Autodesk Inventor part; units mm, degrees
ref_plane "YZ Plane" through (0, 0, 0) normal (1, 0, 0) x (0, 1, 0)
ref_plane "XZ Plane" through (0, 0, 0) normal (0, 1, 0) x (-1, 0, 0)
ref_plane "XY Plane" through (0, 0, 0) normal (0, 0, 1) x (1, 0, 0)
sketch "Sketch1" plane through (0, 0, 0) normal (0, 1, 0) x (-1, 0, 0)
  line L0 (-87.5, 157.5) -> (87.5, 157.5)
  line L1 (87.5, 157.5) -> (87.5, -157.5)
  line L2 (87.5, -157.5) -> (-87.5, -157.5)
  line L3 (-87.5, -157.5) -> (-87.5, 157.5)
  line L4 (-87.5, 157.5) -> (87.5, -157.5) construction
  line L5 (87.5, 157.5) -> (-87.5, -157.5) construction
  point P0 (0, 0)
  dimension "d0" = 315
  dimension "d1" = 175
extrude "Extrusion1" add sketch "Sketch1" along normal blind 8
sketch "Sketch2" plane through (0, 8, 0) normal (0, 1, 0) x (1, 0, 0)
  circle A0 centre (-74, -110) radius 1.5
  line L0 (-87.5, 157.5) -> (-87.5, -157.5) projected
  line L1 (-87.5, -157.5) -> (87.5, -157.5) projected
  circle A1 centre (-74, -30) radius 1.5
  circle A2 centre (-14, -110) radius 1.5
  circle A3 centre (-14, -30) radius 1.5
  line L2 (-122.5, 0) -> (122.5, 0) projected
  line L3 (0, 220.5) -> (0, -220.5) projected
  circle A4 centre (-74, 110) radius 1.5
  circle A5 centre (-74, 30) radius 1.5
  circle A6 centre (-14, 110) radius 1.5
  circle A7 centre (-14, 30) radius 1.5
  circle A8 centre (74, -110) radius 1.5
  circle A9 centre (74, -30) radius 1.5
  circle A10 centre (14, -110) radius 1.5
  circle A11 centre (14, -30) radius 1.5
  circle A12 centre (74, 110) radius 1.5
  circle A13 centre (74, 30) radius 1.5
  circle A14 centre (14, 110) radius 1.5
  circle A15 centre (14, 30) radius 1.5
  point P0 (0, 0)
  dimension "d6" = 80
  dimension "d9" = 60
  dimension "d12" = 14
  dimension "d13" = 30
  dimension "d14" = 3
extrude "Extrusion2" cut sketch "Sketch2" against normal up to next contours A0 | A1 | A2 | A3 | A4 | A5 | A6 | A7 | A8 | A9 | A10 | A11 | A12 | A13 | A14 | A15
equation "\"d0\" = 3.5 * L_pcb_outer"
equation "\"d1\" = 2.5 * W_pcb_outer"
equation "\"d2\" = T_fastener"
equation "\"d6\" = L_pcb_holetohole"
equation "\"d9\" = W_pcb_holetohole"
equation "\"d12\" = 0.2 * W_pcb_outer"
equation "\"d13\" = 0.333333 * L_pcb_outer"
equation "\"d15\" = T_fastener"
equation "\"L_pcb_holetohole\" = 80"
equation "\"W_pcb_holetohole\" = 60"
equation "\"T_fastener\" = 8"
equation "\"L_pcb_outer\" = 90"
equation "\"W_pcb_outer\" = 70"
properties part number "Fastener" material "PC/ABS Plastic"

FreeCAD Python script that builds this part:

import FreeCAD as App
import Part
import Sketcher
from FreeCAD import Vector
Q = App.Units.Quantity

doc = App.newDocument("Part")
body = doc.addObject("PartDesign::Body", "Body")

# Sketch on XZ plane
sketch1 = body.newObject("Sketcher::SketchObject", "Sketch")
sketch1.AttachmentSupport = (doc.getObject("XZ_Plane"), [""])
sketch1.MapMode = "FlatFace"
sketch1.addGeometry([
    Part.LineSegment(Vector(-88, 158, 0), Vector(88, 158, 0)),
    Part.LineSegment(Vector(88, 158, 0), Vector(88, -158, 0)),
    Part.LineSegment(Vector(88, -158, 0), Vector(-88, -158, 0)),
    Part.LineSegment(Vector(-88, -158, 0), Vector(-88, 158, 0)),
], False)
sketch1.addConstraint([
    Sketcher.Constraint("Coincident", 0, 2, 1, 1),
    Sketcher.Constraint("Coincident", 1, 2, 2, 1),
    Sketcher.Constraint("Coincident", 2, 2, 3, 1),
    Sketcher.Constraint("Coincident", 3, 2, 0, 1),
    Sketcher.Constraint("Horizontal", 0),
    Sketcher.Constraint("Vertical", 1),
    Sketcher.Constraint("Horizontal", 2),
    Sketcher.Constraint("Vertical", 3),
    Sketcher.Constraint("Symmetric", 0, 2, 2, 2, -1, 1),
    Sketcher.Constraint("DistanceX", 0, 1, 0, 2, Q("175 mm")),
    Sketcher.Constraint("DistanceY", 1, 2, 1, 1, Q("315 mm")),
])
pad1 = body.newObject("PartDesign::Pad", "Pad")
pad1.Profile = sketch1
pad1.Length = 8
pad1.Reversed = True

# Sketch on XZ plane
sketch2 = body.newObject("Sketcher::SketchObject", "Sketch001")
sketch2.AttachmentSupport = (doc.getObject("XZ_Plane"), [""])
sketch2.MapMode = "FlatFace"
sketch2.AttachmentOffset = App.Placement(Vector(0, 0, -8), App.Rotation())
sketch2.addGeometry([
    Part.Circle(Vector(-74, 110, 0), Vector(0, 0, 1), 1.5),  # 0
    Part.Circle(Vector(-74, 30, 0), Vector(0, 0, 1), 1.5),  # 1
    Part.Circle(Vector(-14, 110, 0), Vector(0, 0, 1), 1.5),  # 2
    Part.Circle(Vector(-14, 30, 0), Vector(0, 0, 1), 1.5),  # 3
    Part.Circle(Vector(-74, -110, 0), Vector(0, 0, 1), 1.5),  # 4
    Part.Circle(Vector(-74, -30, 0), Vector(0, 0, 1), 1.5),  # 5
    Part.Circle(Vector(-14, -110, 0), Vector(0, 0, 1), 1.5),  # 6
    Part.Circle(Vector(-14, -30, 0), Vector(0, 0, 1), 1.5),  # 7
    Part.Circle(Vector(74, 110, 0), Vector(0, 0, 1), 1.5),  # 8
    Part.Circle(Vector(74, 30, 0), Vector(0, 0, 1), 1.5),  # 9
    Part.Circle(Vector(14, 110, 0), Vector(0, 0, 1), 1.5),  # 10
    Part.Circle(Vector(14, 30, 0), Vector(0, 0, 1), 1.5),  # 11
    Part.Circle(Vector(74, -110, 0), Vector(0, 0, 1), 1.5),  # 12
    Part.Circle(Vector(74, -30, 0), Vector(0, 0, 1), 1.5),  # 13
    Part.Circle(Vector(14, -110, 0), Vector(0, 0, 1), 1.5),  # 14
    Part.Circle(Vector(14, -30, 0), Vector(0, 0, 1), 1.5),  # 15
], False)
sketch2.addConstraint([
    Sketcher.Constraint("Equal", 0, 1),
    Sketcher.Constraint("Equal", 1, 2),
    Sketcher.Constraint("Equal", 2, 3),
    Sketcher.Constraint("Equal", 3, 4),
    Sketcher.Constraint("Equal", 4, 5),
    Sketcher.Constraint("Equal", 5, 6),
    Sketcher.Constraint("Equal", 6, 7),
    Sketcher.Constraint("Equal", 7, 8),
    Sketcher.Constraint("Equal", 8, 9),
    Sketcher.Constraint("Equal", 9, 10),
    Sketcher.Constraint("Equal", 10, 11),
    Sketcher.Constraint("Equal", 11, 12),
    Sketcher.Constraint("Equal", 12, 13),
    Sketcher.Constraint("Equal", 13, 14),
    Sketcher.Constraint("Equal", 14, 15),
    Sketcher.Constraint("Symmetric", 4, 3, 8, 3, -1, 1),
    Sketcher.Constraint("Symmetric", 5, 3, 9, 3, -1, 1),
    Sketcher.Constraint("Symmetric", 6, 3, 10, 3, -1, 1),
    Sketcher.Constraint("Symmetric", 7, 3, 11, 3, -1, 1),
    Sketcher.Constraint("Symmetric", 0, 3, 12, 3, -1, 1),
    Sketcher.Constraint("Symmetric", 1, 3, 13, 3, -1, 1),
    Sketcher.Constraint("Symmetric", 2, 3, 14, 3, -1, 1),
    Sketcher.Constraint("Symmetric", 3, 3, 15, 3, -1, 1),
    Sketcher.Constraint("Symmetric", 0, 3, 8, 3, -2),
    Sketcher.Constraint("Symmetric", 1, 3, 9, 3, -2),
    Sketcher.Constraint("Symmetric", 2, 3, 10, 3, -2),
    Sketcher.Constraint("Symmetric", 3, 3, 11, 3, -2),
    Sketcher.Constraint("Horizontal", 0, 3, 2, 3),
    Sketcher.Constraint("Horizontal", 1, 3, 3, 3),
    Sketcher.Constraint("Vertical", 0, 3, 1, 3),
    Sketcher.Constraint("Vertical", 2, 3, 3, 3),
    Sketcher.Constraint("Diameter", 0, Q("3 mm")),
    Sketcher.Constraint("DistanceY", -1, 1, 1, 3, Q("30 mm")),
    Sketcher.Constraint("DistanceX", 2, 3, -1, 1, Q("14 mm")),
    Sketcher.Constraint("DistanceY", 1, 3, 0, 3, Q("80 mm")),
    Sketcher.Constraint("DistanceX", 0, 3, 2, 3, Q("60 mm")),
])
pocket1 = body.newObject("PartDesign::Pocket", "Pocket")
pocket1.Profile = sketch2
pocket1.Type = "UpToFirst"
pocket1.Reversed = True

doc.recompute()
